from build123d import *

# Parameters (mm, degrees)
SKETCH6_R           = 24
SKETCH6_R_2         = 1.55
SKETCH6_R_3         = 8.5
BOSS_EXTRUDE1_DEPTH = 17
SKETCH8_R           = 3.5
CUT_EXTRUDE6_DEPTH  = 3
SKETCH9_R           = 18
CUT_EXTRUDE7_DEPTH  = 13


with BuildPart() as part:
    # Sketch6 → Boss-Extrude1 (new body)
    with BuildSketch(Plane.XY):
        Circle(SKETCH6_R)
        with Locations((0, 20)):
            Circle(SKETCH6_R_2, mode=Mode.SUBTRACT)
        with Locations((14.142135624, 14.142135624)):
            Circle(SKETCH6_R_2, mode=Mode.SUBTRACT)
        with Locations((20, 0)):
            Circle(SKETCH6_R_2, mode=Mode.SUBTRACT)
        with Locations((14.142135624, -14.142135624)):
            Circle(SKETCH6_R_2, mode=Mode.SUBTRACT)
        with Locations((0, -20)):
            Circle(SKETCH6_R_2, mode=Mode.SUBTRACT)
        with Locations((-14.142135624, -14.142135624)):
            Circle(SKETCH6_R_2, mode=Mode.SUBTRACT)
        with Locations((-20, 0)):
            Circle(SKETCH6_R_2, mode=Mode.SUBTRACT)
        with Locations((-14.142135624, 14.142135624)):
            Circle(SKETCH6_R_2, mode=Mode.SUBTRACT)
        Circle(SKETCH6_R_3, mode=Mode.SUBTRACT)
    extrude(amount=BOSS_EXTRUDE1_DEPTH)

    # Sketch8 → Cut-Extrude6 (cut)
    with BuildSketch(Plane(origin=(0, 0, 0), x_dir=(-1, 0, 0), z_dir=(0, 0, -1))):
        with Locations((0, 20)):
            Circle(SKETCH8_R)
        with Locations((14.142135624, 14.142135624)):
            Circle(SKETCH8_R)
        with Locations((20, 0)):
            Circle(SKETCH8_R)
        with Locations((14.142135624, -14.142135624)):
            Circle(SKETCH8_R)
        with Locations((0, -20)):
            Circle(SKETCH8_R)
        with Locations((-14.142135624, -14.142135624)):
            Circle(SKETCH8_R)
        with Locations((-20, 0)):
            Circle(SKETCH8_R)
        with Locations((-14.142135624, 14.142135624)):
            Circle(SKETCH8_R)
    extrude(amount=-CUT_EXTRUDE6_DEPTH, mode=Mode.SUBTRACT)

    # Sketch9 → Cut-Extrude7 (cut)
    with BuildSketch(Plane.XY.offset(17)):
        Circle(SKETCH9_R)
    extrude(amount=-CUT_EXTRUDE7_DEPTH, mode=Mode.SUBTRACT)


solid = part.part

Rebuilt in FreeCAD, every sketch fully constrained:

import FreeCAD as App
import Part
import Sketcher
from FreeCAD import Vector
Q = App.Units.Quantity

doc = App.newDocument("Part")
params = doc.addObject("Spreadsheet::Sheet", "Params")
for row, (alias, value) in enumerate([
    ("sketch1_diameter", "48 mm"),
    ("sketch1_diameter2", "17 mm"),
    ("sketch1_diameter3", "3.1 mm"),
    ("pad1_length", "17 mm"),
    ("sketch2_diameter", "7 mm"),
    ("pocket1_length", "3 mm"),
    ("sketch3_diameter", "36 mm"),
    ("pocket2_length", "13 mm"),
], start=1):
    params.set(f"A{row}", alias)
    params.set(f"B{row}", "=" + value)
    params.setAlias(f"B{row}", alias)

body = doc.addObject("PartDesign::Body", "Body")

# Sketch on XY plane
sketch1 = body.newObject("Sketcher::SketchObject", "Sketch")
sketch1.AttachmentSupport = (doc.getObject("XY_Plane"), [""])
sketch1.MapMode = "FlatFace"
sketch1.addGeometry(Part.Circle(Vector(0, 0, 0), Vector(0, 0, 1), 24), False)
sketch1.addGeometry(Part.Circle(Vector(-14.1, -14.1, 0), Vector(0, 0, 1), 1.6), False)
sketch1.addGeometry(Part.Circle(Vector(0, -20, 0), Vector(0, 0, 1), 1.6), False)
sketch1.addGeometry(Part.Circle(Vector(14.1, -14.1, 0), Vector(0, 0, 1), 1.6), False)
sketch1.addGeometry(Part.Circle(Vector(-20, 0, 0), Vector(0, 0, 1), 1.6), False)
sketch1.addGeometry(Part.Circle(Vector(-14.1, 14.1, 0), Vector(0, 0, 1), 1.6), False)
sketch1.addGeometry(Part.Circle(Vector(0, 0, 0), Vector(0, 0, 1), 8.5), False)
sketch1.addGeometry(Part.Circle(Vector(20, 0, 0), Vector(0, 0, 1), 1.6), False)
sketch1.addGeometry(Part.Circle(Vector(0, 20, 0), Vector(0, 0, 1), 1.6), False)
sketch1.addGeometry(Part.Circle(Vector(14.1, 14.1, 0), Vector(0, 0, 1), 1.6), False)
sketch1.addConstraint(Sketcher.Constraint("Coincident", 0, 3, -1, 1))
sketch1.addConstraint(Sketcher.Constraint("Coincident", 6, 3, -1, 1))
sketch1.addConstraint(Sketcher.Constraint("Equal", 1, 2))
sketch1.addConstraint(Sketcher.Constraint("Equal", 2, 3))
sketch1.addConstraint(Sketcher.Constraint("Equal", 3, 4))
sketch1.addConstraint(Sketcher.Constraint("Equal", 4, 5))
sketch1.addConstraint(Sketcher.Constraint("Equal", 5, 7))
sketch1.addConstraint(Sketcher.Constraint("Equal", 7, 8))
sketch1.addConstraint(Sketcher.Constraint("Equal", 8, 9))
sketch1.addConstraint(Sketcher.Constraint("Symmetric", 3, 3, 5, 3, -1, 1))
sketch1.addConstraint(Sketcher.Constraint("Symmetric", 4, 3, 7, 3, -1, 1))
sketch1.addConstraint(Sketcher.Constraint("Symmetric", 2, 3, 8, 3, -1, 1))
sketch1.addConstraint(Sketcher.Constraint("Symmetric", 1, 3, 9, 3, -1, 1))
sketch1.addConstraint(Sketcher.Constraint("Symmetric", 1, 3, 3, 3, -2))
sketch1.addConstraint(Sketcher.Constraint("PointOnObject", 2, 3, -2))
sketch1.addConstraint(Sketcher.Constraint("PointOnObject", 4, 3, -1))
sketch1.addConstraint(Sketcher.Constraint("Diameter", 0, Q("48 mm")))
sketch1.addConstraint(Sketcher.Constraint("Diameter", 6, Q("17 mm")))
sketch1.addConstraint(Sketcher.Constraint("Diameter", 1, Q("3.1 mm")))
sketch1.addConstraint(Sketcher.Constraint("DistanceY", 2, 3, -1, 1, Q("20 mm")))
sketch1.addConstraint(Sketcher.Constraint("DistanceX", 4, 3, -1, 1, Q("20 mm")))
sketch1.addConstraint(Sketcher.Constraint("DistanceX", 1, 3, 3, 3, Q("28.284271 mm")))
sketch1.addConstraint(Sketcher.Constraint("DistanceY", 1, 3, 5, 3, Q("28.284271 mm")))
sketch1.setExpression("Constraints[16]", "Params.sketch1_diameter")
sketch1.setExpression("Constraints[17]", "Params.sketch1_diameter2")
sketch1.setExpression("Constraints[18]", "Params.sketch1_diameter3")
pad1 = body.newObject("PartDesign::Pad", "Pad")
pad1.Profile = sketch1
pad1.setExpression("Length", "Params.pad1_length")

# Sketch on XY plane
sketch2 = body.newObject("Sketcher::SketchObject", "Sketch001")
sketch2.AttachmentSupport = (doc.getObject("XY_Plane"), [""])
sketch2.MapMode = "FlatFace"
sketch2.addGeometry(Part.Circle(Vector(0, 20, 0), Vector(0, 0, 1), 3.5), False)
sketch2.addGeometry(Part.Circle(Vector(-14.1, 14.1, 0), Vector(0, 0, 1), 3.5), False)
sketch2.addGeometry(Part.Circle(Vector(-20, 0, 0), Vector(0, 0, 1), 3.5), False)
sketch2.addGeometry(Part.Circle(Vector(-14.1, -14.1, 0), Vector(0, 0, 1), 3.5), False)
sketch2.addGeometry(Part.Circle(Vector(0, -20, 0), Vector(0, 0, 1), 3.5), False)
sketch2.addGeometry(Part.Circle(Vector(14.1, -14.1, 0), Vector(0, 0, 1), 3.5), False)
sketch2.addGeometry(Part.Circle(Vector(20, 0, 0), Vector(0, 0, 1), 3.5), False)
sketch2.addGeometry(Part.Circle(Vector(14.1, 14.1, 0), Vector(0, 0, 1), 3.5), False)
sketch2.addConstraint(Sketcher.Constraint("Equal", 0, 1))
sketch2.addConstraint(Sketcher.Constraint("Equal", 1, 2))
sketch2.addConstraint(Sketcher.Constraint("Equal", 2, 3))
sketch2.addConstraint(Sketcher.Constraint("Equal", 3, 4))
sketch2.addConstraint(Sketcher.Constraint("Equal", 4, 5))
sketch2.addConstraint(Sketcher.Constraint("Equal", 5, 6))
sketch2.addConstraint(Sketcher.Constraint("Equal", 6, 7))
sketch2.addConstraint(Sketcher.Constraint("Symmetric", 0, 3, 4, 3, -1, 1))
sketch2.addConstraint(Sketcher.Constraint("Symmetric", 1, 3, 5, 3, -1, 1))
sketch2.addConstraint(Sketcher.Constraint("Symmetric", 2, 3, 6, 3, -1, 1))
sketch2.addConstraint(Sketcher.Constraint("Symmetric", 3, 3, 7, 3, -1, 1))
sketch2.addConstraint(Sketcher.Constraint("Symmetric", 3, 3, 5, 3, -2))
sketch2.addConstraint(Sketcher.Constraint("PointOnObject", 0, 3, -2))
sketch2.addConstraint(Sketcher.Constraint("PointOnObject", 2, 3, -1))
sketch2.addConstraint(Sketcher.Constraint("Diameter", 0, Q("7 mm")))
sketch2.addConstraint(Sketcher.Constraint("DistanceY", -1, 1, 0, 3, Q("20 mm")))
sketch2.addConstraint(Sketcher.Constraint("DistanceX", 2, 3, -1, 1, Q("20 mm")))
sketch2.addConstraint(Sketcher.Constraint("DistanceY", 3, 3, 1, 3, Q("28.284271 mm")))
sketch2.addConstraint(Sketcher.Constraint("DistanceX", 3, 3, 5, 3, Q("28.284271 mm")))
sketch2.setExpression("Constraints[14]", "Params.sketch2_diameter")
pocket1 = body.newObject("PartDesign::Pocket", "Pocket")
pocket1.Profile = sketch2
pocket1.setExpression("Length", "Params.pocket1_length")
pocket1.Reversed = True

# Sketch on XY plane
sketch3 = body.newObject("Sketcher::SketchObject", "Sketch002")
sketch3.AttachmentSupport = (doc.getObject("XY_Plane"), [""])
sketch3.MapMode = "FlatFace"
sketch3.AttachmentOffset = App.Placement(Vector(0, 0, 17), App.Rotation())
sketch3.addGeometry(Part.Circle(Vector(0, 0, 0), Vector(0, 0, 1), 18), False)
sketch3.addConstraint(Sketcher.Constraint("Coincident", 0, 3, -1, 1))
sketch3.addConstraint(Sketcher.Constraint("Diameter", 0, Q("36 mm")))
sketch3.setExpression("Constraints[1]", "Params.sketch3_diameter")
pocket2 = body.newObject("PartDesign::Pocket", "Pocket001")
pocket2.Profile = sketch3
pocket2.setExpression("Length", "Params.pocket2_length")

doc.recompute()
